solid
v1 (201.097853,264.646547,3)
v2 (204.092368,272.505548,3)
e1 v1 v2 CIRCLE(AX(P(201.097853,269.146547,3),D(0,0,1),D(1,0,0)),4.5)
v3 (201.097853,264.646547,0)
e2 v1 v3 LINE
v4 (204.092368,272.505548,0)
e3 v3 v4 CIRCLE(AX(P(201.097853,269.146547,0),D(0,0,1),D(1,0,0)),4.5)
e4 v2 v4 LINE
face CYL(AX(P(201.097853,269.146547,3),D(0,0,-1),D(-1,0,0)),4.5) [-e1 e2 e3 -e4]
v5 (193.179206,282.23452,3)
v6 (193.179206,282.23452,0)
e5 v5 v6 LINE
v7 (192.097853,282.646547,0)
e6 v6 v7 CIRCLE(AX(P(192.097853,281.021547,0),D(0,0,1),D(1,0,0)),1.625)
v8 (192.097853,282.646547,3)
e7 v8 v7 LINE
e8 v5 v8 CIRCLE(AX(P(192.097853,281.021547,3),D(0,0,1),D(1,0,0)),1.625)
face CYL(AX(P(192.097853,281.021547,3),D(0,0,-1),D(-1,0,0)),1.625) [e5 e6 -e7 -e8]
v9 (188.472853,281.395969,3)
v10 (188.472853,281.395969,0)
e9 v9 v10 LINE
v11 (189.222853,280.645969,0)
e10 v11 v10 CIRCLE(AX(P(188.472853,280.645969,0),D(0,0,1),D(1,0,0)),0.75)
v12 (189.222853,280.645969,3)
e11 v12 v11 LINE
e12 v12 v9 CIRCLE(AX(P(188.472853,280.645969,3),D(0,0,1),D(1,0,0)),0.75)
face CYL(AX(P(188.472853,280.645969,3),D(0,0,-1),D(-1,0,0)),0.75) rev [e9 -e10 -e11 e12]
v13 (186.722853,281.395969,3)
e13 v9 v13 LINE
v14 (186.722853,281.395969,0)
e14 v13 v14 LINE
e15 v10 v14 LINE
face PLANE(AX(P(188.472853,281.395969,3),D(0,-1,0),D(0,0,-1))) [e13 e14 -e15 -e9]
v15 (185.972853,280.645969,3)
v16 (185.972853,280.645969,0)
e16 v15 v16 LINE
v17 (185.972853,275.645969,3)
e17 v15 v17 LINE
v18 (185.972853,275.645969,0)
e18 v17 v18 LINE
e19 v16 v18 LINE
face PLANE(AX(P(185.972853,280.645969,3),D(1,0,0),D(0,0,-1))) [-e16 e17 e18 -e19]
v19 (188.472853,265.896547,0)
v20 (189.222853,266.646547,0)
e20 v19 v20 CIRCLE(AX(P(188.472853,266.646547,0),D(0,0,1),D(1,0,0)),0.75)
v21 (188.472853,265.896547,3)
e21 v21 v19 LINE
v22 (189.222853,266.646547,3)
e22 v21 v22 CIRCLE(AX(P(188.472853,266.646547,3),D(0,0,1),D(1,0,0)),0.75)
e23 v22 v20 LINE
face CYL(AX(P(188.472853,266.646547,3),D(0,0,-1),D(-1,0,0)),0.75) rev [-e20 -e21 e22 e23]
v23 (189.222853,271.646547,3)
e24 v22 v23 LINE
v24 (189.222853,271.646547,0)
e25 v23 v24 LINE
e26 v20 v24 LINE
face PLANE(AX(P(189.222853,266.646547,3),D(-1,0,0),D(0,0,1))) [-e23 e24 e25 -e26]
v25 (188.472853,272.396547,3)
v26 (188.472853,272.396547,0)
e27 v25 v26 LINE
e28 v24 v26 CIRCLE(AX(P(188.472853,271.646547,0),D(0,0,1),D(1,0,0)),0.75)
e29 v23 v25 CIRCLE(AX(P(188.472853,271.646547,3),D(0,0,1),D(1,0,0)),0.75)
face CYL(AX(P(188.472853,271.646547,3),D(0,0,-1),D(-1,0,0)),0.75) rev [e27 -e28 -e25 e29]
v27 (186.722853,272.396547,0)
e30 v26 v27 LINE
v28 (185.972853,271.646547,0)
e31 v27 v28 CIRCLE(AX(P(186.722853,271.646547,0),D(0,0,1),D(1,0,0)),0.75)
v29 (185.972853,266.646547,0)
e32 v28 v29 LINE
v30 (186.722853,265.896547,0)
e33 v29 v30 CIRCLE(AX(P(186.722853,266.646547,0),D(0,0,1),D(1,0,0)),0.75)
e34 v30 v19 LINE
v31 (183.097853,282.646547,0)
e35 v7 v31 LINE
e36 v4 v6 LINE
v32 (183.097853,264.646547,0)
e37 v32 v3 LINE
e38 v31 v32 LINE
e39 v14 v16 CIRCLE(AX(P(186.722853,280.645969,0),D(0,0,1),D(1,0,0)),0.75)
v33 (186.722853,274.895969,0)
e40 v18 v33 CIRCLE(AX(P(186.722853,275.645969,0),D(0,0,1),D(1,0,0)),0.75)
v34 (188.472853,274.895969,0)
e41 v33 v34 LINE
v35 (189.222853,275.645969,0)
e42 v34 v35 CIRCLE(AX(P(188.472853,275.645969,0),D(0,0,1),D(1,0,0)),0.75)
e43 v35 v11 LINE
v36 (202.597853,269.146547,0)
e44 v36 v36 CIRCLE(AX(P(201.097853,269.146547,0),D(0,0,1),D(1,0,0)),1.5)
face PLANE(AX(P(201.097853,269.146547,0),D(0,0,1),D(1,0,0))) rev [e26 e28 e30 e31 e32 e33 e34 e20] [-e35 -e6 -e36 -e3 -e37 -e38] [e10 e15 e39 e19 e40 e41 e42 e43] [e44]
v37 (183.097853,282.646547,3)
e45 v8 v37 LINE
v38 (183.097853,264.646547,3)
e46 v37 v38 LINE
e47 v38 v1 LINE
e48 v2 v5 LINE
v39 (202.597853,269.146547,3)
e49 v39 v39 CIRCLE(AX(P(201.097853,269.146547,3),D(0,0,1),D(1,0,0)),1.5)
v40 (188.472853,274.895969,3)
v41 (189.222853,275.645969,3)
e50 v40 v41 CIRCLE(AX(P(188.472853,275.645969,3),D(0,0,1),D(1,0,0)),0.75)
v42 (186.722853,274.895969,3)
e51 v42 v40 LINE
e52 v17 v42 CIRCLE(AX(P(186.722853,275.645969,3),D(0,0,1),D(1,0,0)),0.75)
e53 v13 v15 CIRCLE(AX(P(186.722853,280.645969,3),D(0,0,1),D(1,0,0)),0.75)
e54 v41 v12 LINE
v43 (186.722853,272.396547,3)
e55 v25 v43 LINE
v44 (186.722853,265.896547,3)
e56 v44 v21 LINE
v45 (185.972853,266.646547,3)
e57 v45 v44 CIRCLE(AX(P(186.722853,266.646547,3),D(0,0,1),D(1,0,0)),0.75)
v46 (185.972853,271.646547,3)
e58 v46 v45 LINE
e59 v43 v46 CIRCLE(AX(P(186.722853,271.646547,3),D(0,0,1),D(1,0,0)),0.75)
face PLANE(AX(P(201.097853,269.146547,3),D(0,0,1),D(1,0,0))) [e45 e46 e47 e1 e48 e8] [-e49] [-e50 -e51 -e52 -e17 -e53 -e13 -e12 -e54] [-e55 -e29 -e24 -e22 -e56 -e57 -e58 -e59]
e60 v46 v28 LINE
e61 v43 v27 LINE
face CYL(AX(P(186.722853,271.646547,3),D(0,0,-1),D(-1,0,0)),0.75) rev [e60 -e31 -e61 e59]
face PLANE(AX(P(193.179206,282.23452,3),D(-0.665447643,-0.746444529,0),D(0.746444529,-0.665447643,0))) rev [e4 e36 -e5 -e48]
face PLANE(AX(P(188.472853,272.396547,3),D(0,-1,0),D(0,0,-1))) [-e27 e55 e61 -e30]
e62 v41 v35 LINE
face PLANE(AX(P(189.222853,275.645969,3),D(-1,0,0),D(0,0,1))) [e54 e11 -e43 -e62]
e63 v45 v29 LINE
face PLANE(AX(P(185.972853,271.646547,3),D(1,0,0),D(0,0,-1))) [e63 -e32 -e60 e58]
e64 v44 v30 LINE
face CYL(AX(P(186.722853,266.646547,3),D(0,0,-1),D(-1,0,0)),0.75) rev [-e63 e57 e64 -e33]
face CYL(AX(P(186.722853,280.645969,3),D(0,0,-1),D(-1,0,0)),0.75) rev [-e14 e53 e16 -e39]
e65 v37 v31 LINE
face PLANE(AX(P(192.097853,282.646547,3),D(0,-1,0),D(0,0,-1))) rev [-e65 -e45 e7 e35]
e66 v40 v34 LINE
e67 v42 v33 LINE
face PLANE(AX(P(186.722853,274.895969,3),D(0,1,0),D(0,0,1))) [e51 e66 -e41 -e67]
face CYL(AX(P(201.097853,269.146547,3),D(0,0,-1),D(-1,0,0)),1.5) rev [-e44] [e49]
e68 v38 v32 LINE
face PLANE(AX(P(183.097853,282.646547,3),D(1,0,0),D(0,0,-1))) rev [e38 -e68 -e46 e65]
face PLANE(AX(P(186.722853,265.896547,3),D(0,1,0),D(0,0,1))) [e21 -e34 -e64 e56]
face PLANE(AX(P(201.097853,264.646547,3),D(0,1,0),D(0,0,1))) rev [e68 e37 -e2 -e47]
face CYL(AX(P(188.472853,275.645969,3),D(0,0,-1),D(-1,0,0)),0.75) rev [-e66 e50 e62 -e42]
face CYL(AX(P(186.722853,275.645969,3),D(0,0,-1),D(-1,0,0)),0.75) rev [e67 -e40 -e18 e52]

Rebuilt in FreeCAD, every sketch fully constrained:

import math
import FreeCAD as App
import Part
import Sketcher
from FreeCAD import Vector

doc = App.newDocument("Part")
params = doc.addObject("Spreadsheet::Sheet", "Params")
for row, (alias, value) in enumerate([
    ("sketch1_diameter", "3 mm"),
    ("sketch1_radius", "4.5 mm"),
    ("sketch1_width", "18 mm"),
    ("sketch1_width2", "9 mm"),
    ("sketch1_height", "5 mm"),
    ("pad1_length", "3 mm"),
], start=1):
    params.set(f"A{row}", alias)
    params.set(f"B{row}", "=" + value)
    params.setAlias(f"B{row}", alias)

body = doc.addObject("PartDesign::Body", "Body")

# Sketch on XY plane
sketch1 = body.newObject("Sketcher::SketchObject", "Sketch")
sketch1.AttachmentSupport = (doc.getObject("XY_Plane"), [""])
sketch1.MapMode = "FlatFace"
sketch1.addGeometry([
    Part.LineSegment(Vector(183.1, 264.6, 0), Vector(201.1, 264.6, 0)),  # 0
    Part.ArcOfCircle(Part.Circle(Vector(201.1, 269.1, 0), Vector(0, 0, 1), 4.5), math.radians(-90), math.radians(48)),  # 1
    Part.LineSegment(Vector(204.1, 272.5, 0), Vector(193.2, 282.2, 0)),  # 2
    Part.ArcOfCircle(Part.Circle(Vector(192.1, 281, 0), Vector(0, 0, 1), 1.6), math.radians(48), math.radians(90)),  # 3
    Part.LineSegment(Vector(192.1, 282.6, 0), Vector(183.1, 282.6, 0)),  # 4
    Part.LineSegment(Vector(183.1, 282.6, 0), Vector(183.1, 264.6, 0)),  # 5
    Part.Circle(Vector(201.1, 269.1, 0), Vector(0, 0, 1), 1.5),  # 6
    Part.ArcOfCircle(Part.Circle(Vector(186.7, 266.6, 0), Vector(0, 0, 1), 0.8), math.radians(180), math.radians(270)),  # 7
    Part.LineSegment(Vector(186, 266.6, 0), Vector(186, 271.6, 0)),  # 8
    Part.ArcOfCircle(Part.Circle(Vector(186.7, 271.6, 0), Vector(0, 0, 1), 0.8), math.radians(90), math.radians(180)),  # 9
    Part.LineSegment(Vector(186.7, 272.4, 0), Vector(188.5, 272.4, 0)),  # 10
    Part.ArcOfCircle(Part.Circle(Vector(188.5, 271.6, 0), Vector(0, 0, 1), 0.8), math.radians(0), math.radians(90)),  # 11
    Part.LineSegment(Vector(189.2, 271.6, 0), Vector(189.2, 266.6, 0)),  # 12
    Part.ArcOfCircle(Part.Circle(Vector(188.5, 266.6, 0), Vector(0, 0, 1), 0.8), math.radians(-90), math.radians(0)),  # 13
    Part.LineSegment(Vector(188.5, 265.9, 0), Vector(186.7, 265.9, 0)),  # 14
    Part.ArcOfCircle(Part.Circle(Vector(186.7, 275.6, 0), Vector(0, 0, 1), 0.8), math.radians(180), math.radians(270)),  # 15
    Part.LineSegment(Vector(186, 275.6, 0), Vector(186, 280.6, 0)),  # 16
    Part.ArcOfCircle(Part.Circle(Vector(186.7, 280.6, 0), Vector(0, 0, 1), 0.8), math.radians(90), math.radians(180)),  # 17
    Part.LineSegment(Vector(186.7, 281.4, 0), Vector(188.5, 281.4, 0)),  # 18
    Part.ArcOfCircle(Part.Circle(Vector(188.5, 280.6, 0), Vector(0, 0, 1), 0.8), math.radians(0), math.radians(90)),  # 19
    Part.LineSegment(Vector(189.2, 280.6, 0), Vector(189.2, 275.6, 0)),  # 20
    Part.ArcOfCircle(Part.Circle(Vector(188.5, 275.6, 0), Vector(0, 0, 1), 0.8), math.radians(-90), math.radians(0)),  # 21
    Part.LineSegment(Vector(188.5, 274.9, 0), Vector(186.7, 274.9, 0)),  # 22
], False)
sketch1.addConstraint([
    Sketcher.Constraint("Tangent", 0, 2, 1, 1),
    Sketcher.Constraint("Tangent", 1, 2, 2, 1),
    Sketcher.Constraint("Tangent", 2, 2, 3, 1),
    Sketcher.Constraint("Tangent", 3, 2, 4, 1),
    Sketcher.Constraint("Coincident", 4, 2, 5, 1),
    Sketcher.Constraint("Coincident", 5, 2, 0, 1),
    Sketcher.Constraint("Tangent", 7, 1, 8, 1),
    Sketcher.Constraint("Tangent", 8, 2, 9, 2),
    Sketcher.Constraint("Tangent", 9, 1, 10, 1),
    Sketcher.Constraint("Tangent", 10, 2, 11, 2),
    Sketcher.Constraint("Tangent", 11, 1, 12, 1),
    Sketcher.Constraint("Tangent", 12, 2, 13, 2),
    Sketcher.Constraint("Tangent", 13, 1, 14, 1),
    Sketcher.Constraint("Tangent", 14, 2, 7, 2),
    Sketcher.Constraint("Tangent", 15, 1, 16, 1),
    Sketcher.Constraint("Tangent", 16, 2, 17, 2),
    Sketcher.Constraint("Tangent", 17, 1, 18, 1),
    Sketcher.Constraint("Tangent", 18, 2, 19, 2),
    Sketcher.Constraint("Tangent", 19, 1, 20, 1),
    Sketcher.Constraint("Tangent", 20, 2, 21, 2),
    Sketcher.Constraint("Tangent", 21, 1, 22, 1),
    Sketcher.Constraint("Tangent", 22, 2, 15, 2),
    Sketcher.Constraint("Horizontal", 0),
    Sketcher.Constraint("Horizontal", 4),
    Sketcher.Constraint("Vertical", 5),
    Sketcher.Constraint("Vertical", 8),
    Sketcher.Constraint("Horizontal", 10),
    Sketcher.Constraint("Vertical", 12),
    Sketcher.Constraint("Horizontal", 14),
    Sketcher.Constraint("Vertical", 16),
    Sketcher.Constraint("Horizontal", 18),
    Sketcher.Constraint("Vertical", 20),
    Sketcher.Constraint("Horizontal", 22),
    Sketcher.Constraint("Coincident", 6, 3, 1, 3),
    Sketcher.Constraint("Equal", 7, 9),
    Sketcher.Constraint("Equal", 9, 11),
    Sketcher.Constraint("Equal", 11, 13),
    Sketcher.Constraint("Equal", 13, 15),
    Sketcher.Constraint("Equal", 15, 17),
    Sketcher.Constraint("Equal", 17, 19),
    Sketcher.Constraint("Equal", 19, 21),
    Sketcher.Constraint("Vertical", 9, 3, 15, 3),
    Sketcher.Constraint("Vertical", 13, 3, 19, 3),
    Sketcher.Constraint("Equal", 0, 5),
    Sketcher.Constraint("Equal", 12, 16),
    Sketcher.Constraint("Diameter", 6, 3.0),
    Sketcher.Constraint("Radius", 1, 4.5),
    Sketcher.Constraint("DistanceX", 0, 1, 0, 2, 18.0),
    Sketcher.Constraint("DistanceX", 4, 2, 4, 1, 9.0),
    Sketcher.Constraint("DistanceY", 8, 1, 8, 2, 5.0),
    Sketcher.Constraint("Radius", 7, 0.75),
    Sketcher.Constraint("Radius", 3, 1.625),
    Sketcher.Constraint("DistanceY", 0, 2, 13, 3, 2.0),
    Sketcher.Constraint("DistanceX", 10, 1, 10, 2, 1.75),
    Sketcher.Constraint("DistanceX", 7, 3, 1, 3, 14.375),
    Sketcher.Constraint("DistanceY", -1, 1, 15, 3, 275.645969),
    Sketcher.Constraint("DistanceY", -1, 1, 2, 2, 282.23452),
    Sketcher.Constraint("DistanceX", -1, 1, 1, 3, 201.097853),
])
sketch1.setExpression("Constraints[45]", "Params.sketch1_diameter")
sketch1.setExpression("Constraints[46]", "Params.sketch1_radius")
sketch1.setExpression("Constraints[47]", "Params.sketch1_width")
sketch1.setExpression("Constraints[48]", "Params.sketch1_width2")
sketch1.setExpression("Constraints[49]", "Params.sketch1_height")
pad1 = body.newObject("PartDesign::Pad", "Pad")
pad1.Profile = sketch1
pad1.setExpression("Length", "Params.pad1_length")

doc.recompute()
